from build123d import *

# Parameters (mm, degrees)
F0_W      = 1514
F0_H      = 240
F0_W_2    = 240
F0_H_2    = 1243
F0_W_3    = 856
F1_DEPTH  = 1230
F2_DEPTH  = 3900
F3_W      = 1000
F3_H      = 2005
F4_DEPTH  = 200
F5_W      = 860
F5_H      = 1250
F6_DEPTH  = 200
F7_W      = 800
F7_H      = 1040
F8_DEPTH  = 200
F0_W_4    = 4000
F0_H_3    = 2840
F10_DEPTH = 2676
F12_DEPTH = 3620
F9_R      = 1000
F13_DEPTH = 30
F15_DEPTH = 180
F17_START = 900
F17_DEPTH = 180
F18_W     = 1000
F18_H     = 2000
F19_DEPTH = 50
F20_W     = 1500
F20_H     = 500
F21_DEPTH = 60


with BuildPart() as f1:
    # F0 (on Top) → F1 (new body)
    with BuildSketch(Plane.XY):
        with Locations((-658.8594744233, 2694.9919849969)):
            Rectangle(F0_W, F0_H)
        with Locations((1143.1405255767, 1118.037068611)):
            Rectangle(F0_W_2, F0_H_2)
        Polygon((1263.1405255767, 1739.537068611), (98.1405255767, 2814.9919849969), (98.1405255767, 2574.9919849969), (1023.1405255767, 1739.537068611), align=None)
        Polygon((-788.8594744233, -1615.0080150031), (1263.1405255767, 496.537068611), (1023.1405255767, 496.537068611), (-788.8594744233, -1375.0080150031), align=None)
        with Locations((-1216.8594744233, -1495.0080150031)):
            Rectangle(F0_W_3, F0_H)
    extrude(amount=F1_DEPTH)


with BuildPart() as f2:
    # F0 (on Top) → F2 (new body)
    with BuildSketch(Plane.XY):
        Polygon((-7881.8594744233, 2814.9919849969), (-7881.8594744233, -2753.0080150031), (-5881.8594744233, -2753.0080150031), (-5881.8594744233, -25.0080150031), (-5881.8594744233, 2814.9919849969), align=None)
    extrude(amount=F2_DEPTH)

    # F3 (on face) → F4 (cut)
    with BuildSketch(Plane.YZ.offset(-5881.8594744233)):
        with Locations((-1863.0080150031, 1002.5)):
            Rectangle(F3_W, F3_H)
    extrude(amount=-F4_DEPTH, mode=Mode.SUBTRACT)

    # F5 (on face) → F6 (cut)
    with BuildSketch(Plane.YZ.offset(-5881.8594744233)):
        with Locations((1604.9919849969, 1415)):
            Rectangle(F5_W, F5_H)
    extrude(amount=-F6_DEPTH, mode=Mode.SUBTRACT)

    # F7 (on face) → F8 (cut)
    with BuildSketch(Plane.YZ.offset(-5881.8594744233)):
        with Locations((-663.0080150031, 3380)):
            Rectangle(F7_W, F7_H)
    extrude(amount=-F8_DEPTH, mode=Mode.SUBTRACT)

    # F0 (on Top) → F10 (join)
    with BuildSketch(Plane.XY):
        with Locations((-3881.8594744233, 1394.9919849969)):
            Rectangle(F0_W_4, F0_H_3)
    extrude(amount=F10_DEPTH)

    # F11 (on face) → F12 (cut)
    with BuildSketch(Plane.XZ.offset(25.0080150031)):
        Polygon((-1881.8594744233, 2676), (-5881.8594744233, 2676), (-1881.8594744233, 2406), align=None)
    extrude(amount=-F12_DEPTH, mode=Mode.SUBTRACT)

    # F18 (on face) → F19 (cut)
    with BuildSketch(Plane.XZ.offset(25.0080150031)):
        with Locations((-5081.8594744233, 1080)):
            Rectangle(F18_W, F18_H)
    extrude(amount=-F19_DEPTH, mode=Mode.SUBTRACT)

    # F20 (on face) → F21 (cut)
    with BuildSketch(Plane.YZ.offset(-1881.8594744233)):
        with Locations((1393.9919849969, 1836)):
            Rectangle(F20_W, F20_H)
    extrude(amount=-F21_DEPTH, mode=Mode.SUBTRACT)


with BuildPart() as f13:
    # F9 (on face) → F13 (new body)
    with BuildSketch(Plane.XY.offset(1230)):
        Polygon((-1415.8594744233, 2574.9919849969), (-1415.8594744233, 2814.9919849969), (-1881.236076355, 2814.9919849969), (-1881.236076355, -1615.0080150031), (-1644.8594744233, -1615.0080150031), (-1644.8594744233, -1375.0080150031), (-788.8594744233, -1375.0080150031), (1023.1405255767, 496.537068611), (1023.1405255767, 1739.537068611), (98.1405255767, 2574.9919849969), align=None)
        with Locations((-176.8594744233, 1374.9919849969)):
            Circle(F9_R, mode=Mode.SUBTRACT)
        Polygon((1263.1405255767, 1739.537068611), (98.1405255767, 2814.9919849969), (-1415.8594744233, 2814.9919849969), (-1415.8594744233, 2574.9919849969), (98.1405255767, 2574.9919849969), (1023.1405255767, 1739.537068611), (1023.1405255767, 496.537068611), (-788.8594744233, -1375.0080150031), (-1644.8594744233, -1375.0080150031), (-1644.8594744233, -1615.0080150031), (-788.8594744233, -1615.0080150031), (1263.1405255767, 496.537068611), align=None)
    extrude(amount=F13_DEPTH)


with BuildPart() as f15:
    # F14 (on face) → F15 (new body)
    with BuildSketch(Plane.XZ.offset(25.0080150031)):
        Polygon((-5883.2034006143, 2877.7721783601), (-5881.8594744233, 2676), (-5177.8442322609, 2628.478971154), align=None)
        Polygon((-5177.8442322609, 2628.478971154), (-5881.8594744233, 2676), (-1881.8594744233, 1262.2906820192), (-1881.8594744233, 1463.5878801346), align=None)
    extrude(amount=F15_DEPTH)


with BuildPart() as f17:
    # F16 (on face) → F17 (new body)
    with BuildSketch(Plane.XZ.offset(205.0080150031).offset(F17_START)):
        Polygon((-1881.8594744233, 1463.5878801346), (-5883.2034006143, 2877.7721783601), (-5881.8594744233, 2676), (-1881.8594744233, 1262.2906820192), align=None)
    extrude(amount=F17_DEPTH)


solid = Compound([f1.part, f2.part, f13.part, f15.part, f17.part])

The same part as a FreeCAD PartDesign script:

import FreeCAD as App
import Part
import Sketcher


def add_polygon(sketch, points):
    """Adds a closed chain of lines whose ends are joined by coincident constraints."""
    first, n = sketch.GeometryCount, len(points)
    for a, b in zip(points, points[1:] + points[:1]):
        sketch.addGeometry(Part.LineSegment(App.Vector(*a, 0), App.Vector(*b, 0)), False)
    for i in range(n):
        sketch.addConstraint(Sketcher.Constraint("Coincident", first + i, 2, first + (i + 1) % n, 1))

doc = App.newDocument("Part")
body = doc.addObject("PartDesign::Body", "Body")

# Sketch on XY plane
sketch1 = doc.addObject("Sketcher::SketchObject", "Sketch")
body.addObject(sketch1)
sketch1.AttachmentSupport = (doc.XY_Plane, [""])
sketch1.MapMode = "FlatFace"
add_polygon(sketch1, [(-1416, 2815), (-1416, 2575), (98, 2575), (1023, 1740), (1023, 497), (-789, -1375), (-1645, -1375), (-1645, -1615), (-789, -1615), (1263, 497), (1263, 1740), (98, 2815)])  # lines 0-11
sketch1.addConstraint(Sketcher.Constraint("Vertical", 0))
sketch1.addConstraint(Sketcher.Constraint("Horizontal", 1))
sketch1.addConstraint(Sketcher.Constraint("Vertical", 3))
sketch1.addConstraint(Sketcher.Constraint("Horizontal", 5))
sketch1.addConstraint(Sketcher.Constraint("Vertical", 6))
sketch1.addConstraint(Sketcher.Constraint("Horizontal", 7))
sketch1.addConstraint(Sketcher.Constraint("Vertical", 9))
sketch1.addConstraint(Sketcher.Constraint("Horizontal", 11))
sketch1.addConstraint(Sketcher.Constraint("Horizontal", 3, 2, 8, 2))
sketch1.addConstraint(Sketcher.Constraint("Horizontal", 2, 2, 9, 2))
sketch1.addConstraint(Sketcher.Constraint("Vertical", 4, 2, 7, 2))
sketch1.addConstraint(Sketcher.Constraint("Vertical", 1, 2, 10, 2))
sketch1.addConstraint(Sketcher.Constraint("Equal", 0, 6))
sketch1.addConstraint(Sketcher.Constraint("DistanceX", 1, 1, 1, 2, 1514.0))
sketch1.addConstraint(Sketcher.Constraint("DistanceX", 5, 2, 5, 1, 856.0))
sketch1.addConstraint(Sketcher.Constraint("DistanceY", 0, 2, 0, 1, 240.0))
sketch1.addConstraint(Sketcher.Constraint("DistanceY", 3, 2, 3, 1, 1243.0))
sketch1.addConstraint(Sketcher.Constraint("Distance", 4, 2605.0))
sketch1.addConstraint(Sketcher.Constraint("DistanceX", 1, 2, 2, 2, 925.0))
sketch1.addConstraint(Sketcher.Constraint("DistanceX", 4, 2, 3, 2, 1812.0))
sketch1.addConstraint(Sketcher.Constraint("DistanceY", 4, 2, 0, 2, 3950.0))
sketch1.addConstraint(Sketcher.Constraint("DistanceX", 3, 2, 8, 2, 240.0))
sketch1.addConstraint(Sketcher.Constraint("DistanceY", -1, 1, 2, 2, 1739.537069))
sketch1.addConstraint(Sketcher.Constraint("DistanceX", 0, 2, -1, 1, 1415.859474))
pad1 = doc.addObject("PartDesign::Pad", "Pad")
body.addObject(pad1)
pad1.Profile = sketch1
pad1.Length = 1230
body2 = doc.addObject("PartDesign::Body", "Body001")

# Sketch on XY plane
sketch2 = doc.addObject("Sketcher::SketchObject", "Sketch001")
body2.addObject(sketch2)
sketch2.AttachmentSupport = (doc.getObject("XY_Plane001"), [""])
sketch2.MapMode = "FlatFace"
add_polygon(sketch2, [(-7882, 2815), (-7882, -2753), (-5882, -2753), (-5882, 2815)])  # lines 0-3
sketch2.addConstraint(Sketcher.Constraint("Vertical", 0))
sketch2.addConstraint(Sketcher.Constraint("Horizontal", 1))
sketch2.addConstraint(Sketcher.Constraint("Vertical", 2))
sketch2.addConstraint(Sketcher.Constraint("Horizontal", 3))
sketch2.addConstraint(Sketcher.Constraint("DistanceX", 1, 1, 1, 2, 2000.0))
sketch2.addConstraint(Sketcher.Constraint("DistanceY", 0, 2, 0, 1, 5568.0))
sketch2.addConstraint(Sketcher.Constraint("DistanceX", 0, 2, -1, 1, 7881.859474))
sketch2.addConstraint(Sketcher.Constraint("DistanceY", 0, 2, -1, 1, 2753.008015))
pad2 = doc.addObject("PartDesign::Pad", "Pad001")
body2.addObject(pad2)
pad2.Profile = sketch2
pad2.Length = 3900

# Sketch on YZ plane
sketch3 = doc.addObject("Sketcher::SketchObject", "Sketch002")
body2.addObject(sketch3)
sketch3.AttachmentSupport = (doc.getObject("YZ_Plane001"), [""])
sketch3.MapMode = "FlatFace"
sketch3.AttachmentOffset = App.Placement(App.Vector(0, 0, -5881.859474), App.Rotation())
add_polygon(sketch3, [(-2363, 2005), (-2363, 0), (-1363, 0), (-1363, 2005)])  # lines 0-3
sketch3.addConstraint(Sketcher.Constraint("Vertical", 0))
sketch3.addConstraint(Sketcher.Constraint("Horizontal", 1))
sketch3.addConstraint(Sketcher.Constraint("Vertical", 2))
sketch3.addConstraint(Sketcher.Constraint("Horizontal", 3))
sketch3.addConstraint(Sketcher.Constraint("PointOnObject", 0, 2, -1))
sketch3.addConstraint(Sketcher.Constraint("DistanceX", 1, 1, 1, 2, 1000.0))
sketch3.addConstraint(Sketcher.Constraint("DistanceY", 0, 2, 0, 1, 2005.0))
sketch3.addConstraint(Sketcher.Constraint("DistanceX", 0, 2, -1, 1, 2363.008015))
pocket1 = doc.addObject("PartDesign::Pocket", "Pocket")
body2.addObject(pocket1)
pocket1.Profile = sketch3
pocket1.Length = 200

# Sketch on YZ plane
sketch4 = doc.addObject("Sketcher::SketchObject", "Sketch003")
body2.addObject(sketch4)
sketch4.AttachmentSupport = (doc.getObject("YZ_Plane001"), [""])
sketch4.MapMode = "FlatFace"
sketch4.AttachmentOffset = App.Placement(App.Vector(0, 0, -5881.859474), App.Rotation())
add_polygon(sketch4, [(1175, 2040), (1175, 790), (2035, 790), (2035, 2040)])  # lines 0-3
sketch4.addConstraint(Sketcher.Constraint("Vertical", 0))
sketch4.addConstraint(Sketcher.Constraint("Horizontal", 1))
sketch4.addConstraint(Sketcher.Constraint("Vertical", 2))
sketch4.addConstraint(Sketcher.Constraint("Horizontal", 3))
sketch4.addConstraint(Sketcher.Constraint("DistanceX", 1, 1, 1, 2, 860.0))
sketch4.addConstraint(Sketcher.Constraint("DistanceY", 0, 2, 0, 1, 1250.0))
sketch4.addConstraint(Sketcher.Constraint("DistanceY", -1, 1, 0, 2, 790.0))
sketch4.addConstraint(Sketcher.Constraint("DistanceX", -1, 1, 0, 2, 1174.991985))
pocket2 = doc.addObject("PartDesign::Pocket", "Pocket001")
body2.addObject(pocket2)
pocket2.Profile = sketch4
pocket2.Length = 200

# Sketch on YZ plane
sketch5 = doc.addObject("Sketcher::SketchObject", "Sketch004")
body2.addObject(sketch5)
sketch5.AttachmentSupport = (doc.getObject("YZ_Plane001"), [""])
sketch5.MapMode = "FlatFace"
sketch5.AttachmentOffset = App.Placement(App.Vector(0, 0, -5881.859474), App.Rotation())
add_polygon(sketch5, [(-1063, 3900), (-1063, 2860), (-263, 2860), (-263, 3900)])  # lines 0-3
sketch5.addConstraint(Sketcher.Constraint("Vertical", 0))
sketch5.addConstraint(Sketcher.Constraint("Horizontal", 1))
sketch5.addConstraint(Sketcher.Constraint("Vertical", 2))
sketch5.addConstraint(Sketcher.Constraint("Horizontal", 3))
sketch5.addConstraint(Sketcher.Constraint("DistanceX", 1, 1, 1, 2, 800.0))
sketch5.addConstraint(Sketcher.Constraint("DistanceY", 0, 2, 0, 1, 1040.0))
sketch5.addConstraint(Sketcher.Constraint("DistanceY", -1, 1, 0, 2, 2860.0))
sketch5.addConstraint(Sketcher.Constraint("DistanceX", 0, 2, -1, 1, 1063.008015))
pocket3 = doc.addObject("PartDesign::Pocket", "Pocket002")
body2.addObject(pocket3)
pocket3.Profile = sketch5
pocket3.Length = 200

# Sketch on XY plane
sketch6 = doc.addObject("Sketcher::SketchObject", "Sketch005")
body2.addObject(sketch6)
sketch6.AttachmentSupport = (doc.getObject("XY_Plane001"), [""])
sketch6.MapMode = "FlatFace"
add_polygon(sketch6, [(-5882, 2815), (-5882, -25), (-1882, -25), (-1882, 2815)])  # lines 0-3
sketch6.addConstraint(Sketcher.Constraint("Vertical", 0))
sketch6.addConstraint(Sketcher.Constraint("Horizontal", 1))
sketch6.addConstraint(Sketcher.Constraint("Vertical", 2))
sketch6.addConstraint(Sketcher.Constraint("Horizontal", 3))
sketch6.addConstraint(Sketcher.Constraint("DistanceX", 1, 1, 1, 2, 4000.0))
sketch6.addConstraint(Sketcher.Constraint("DistanceY", 0, 2, 0, 1, 2840.0))
sketch6.addConstraint(Sketcher.Constraint("DistanceX", 0, 2, -1, 1, 5881.859474))
sketch6.addConstraint(Sketcher.Constraint("DistanceY", 0, 2, -1, 1, 25.008015))
pad3 = doc.addObject("PartDesign::Pad", "Pad002")
body2.addObject(pad3)
pad3.Profile = sketch6
pad3.Length = 2676

# Sketch on XZ plane
sketch7 = doc.addObject("Sketcher::SketchObject", "Sketch006")
body2.addObject(sketch7)
sketch7.AttachmentSupport = (doc.getObject("XZ_Plane001"), [""])
sketch7.MapMode = "FlatFace"
sketch7.AttachmentOffset = App.Placement(App.Vector(0, 0, 25.008015), App.Rotation())
add_polygon(sketch7, [(-1882, 2676), (-5882, 2676), (-1882, 2406)])  # lines 0-2
sketch7.addConstraint(Sketcher.Constraint("Horizontal", 0))
sketch7.addConstraint(Sketcher.Constraint("Vertical", 2))
sketch7.addConstraint(Sketcher.Constraint("DistanceX", 0, 2, 0, 1, 4000.0))
sketch7.addConstraint(Sketcher.Constraint("DistanceY", 2, 1, 2, 2, 270.0))
sketch7.addConstraint(Sketcher.Constraint("DistanceY", -1, 1, 0, 2, 2676.0))
sketch7.addConstraint(Sketcher.Constraint("DistanceX", 0, 2, -1, 1, 5881.859474))
pocket4 = doc.addObject("PartDesign::Pocket", "Pocket003")
body2.addObject(pocket4)
pocket4.Profile = sketch7
pocket4.Length = 3620

# Sketch on XZ plane
sketch8 = doc.addObject("Sketcher::SketchObject", "Sketch007")
body2.addObject(sketch8)
sketch8.AttachmentSupport = (doc.getObject("XZ_Plane001"), [""])
sketch8.MapMode = "FlatFace"
sketch8.AttachmentOffset = App.Placement(App.Vector(0, 0, 25.008015), App.Rotation())
add_polygon(sketch8, [(-5582, 2080), (-5582, 80), (-4582, 80), (-4582, 2080)])  # lines 0-3
sketch8.addConstraint(Sketcher.Constraint("Vertical", 0))
sketch8.addConstraint(Sketcher.Constraint("Horizontal", 1))
sketch8.addConstraint(Sketcher.Constraint("Vertical", 2))
sketch8.addConstraint(Sketcher.Constraint("Horizontal", 3))
sketch8.addConstraint(Sketcher.Constraint("DistanceX", 1, 1, 1, 2, 1000.0))
sketch8.addConstraint(Sketcher.Constraint("DistanceY", 0, 2, 0, 1, 2000.0))
sketch8.addConstraint(Sketcher.Constraint("DistanceY", -1, 1, 0, 2, 80.0))
sketch8.addConstraint(Sketcher.Constraint("DistanceX", 0, 2, -1, 1, 5581.859474))
pocket5 = doc.addObject("PartDesign::Pocket", "Pocket004")
body2.addObject(pocket5)
pocket5.Profile = sketch8
pocket5.Length = 50

# Sketch on YZ plane
sketch9 = doc.addObject("Sketcher::SketchObject", "Sketch008")
body2.addObject(sketch9)
sketch9.AttachmentSupport = (doc.getObject("YZ_Plane001"), [""])
sketch9.MapMode = "FlatFace"
sketch9.AttachmentOffset = App.Placement(App.Vector(0, 0, -1881.859474), App.Rotation())
add_polygon(sketch9, [(644, 2086), (644, 1586), (2144, 1586), (2144, 2086)])  # lines 0-3
sketch9.addConstraint(Sketcher.Constraint("Vertical", 0))
sketch9.addConstraint(Sketcher.Constraint("Horizontal", 1))
sketch9.addConstraint(Sketcher.Constraint("Vertical", 2))
sketch9.addConstraint(Sketcher.Constraint("Horizontal", 3))
sketch9.addConstraint(Sketcher.Constraint("DistanceX", 1, 1, 1, 2, 1500.0))
sketch9.addConstraint(Sketcher.Constraint("DistanceY", 0, 2, 0, 1, 500.0))
sketch9.addConstraint(Sketcher.Constraint("DistanceY", -1, 1, 0, 2, 1586.0))
sketch9.addConstraint(Sketcher.Constraint("DistanceX", -1, 1, 0, 2, 643.991985))
pocket6 = doc.addObject("PartDesign::Pocket", "Pocket005")
body2.addObject(pocket6)
pocket6.Profile = sketch9
pocket6.Length = 60
body3 = doc.addObject("PartDesign::Body", "Body002")

# Sketch on XY plane
sketch10 = doc.addObject("Sketcher::SketchObject", "Sketch009")
body3.addObject(sketch10)
sketch10.AttachmentSupport = (doc.getObject("XY_Plane002"), [""])
sketch10.MapMode = "FlatFace"
sketch10.AttachmentOffset = App.Placement(App.Vector(0, 0, 1230), App.Rotation())
add_polygon(sketch10, [(-1881, 2815), (-1881, -1615), (-789, -1615), (1263, 497), (1263, 1740), (98, 2815)])  # lines 0-5
sketch10.addGeometry(Part.Circle(App.Vector(-177, 1375, 0), App.Vector(0, 0, 1), 1000), False)  # 6
sketch10.addConstraint(Sketcher.Constraint("Vertical", 0))
sketch10.addConstraint(Sketcher.Constraint("Horizontal", 1))
sketch10.addConstraint(Sketcher.Constraint("Vertical", 3))
sketch10.addConstraint(Sketcher.Constraint("Horizontal", 5))
sketch10.addConstraint(Sketcher.Constraint("Diameter", 6, 2000.0))
sketch10.addConstraint(Sketcher.Constraint("DistanceY", 0, 2, 0, 1, 4430.0))
sketch10.addConstraint(Sketcher.Constraint("DistanceY", 3, 1, 3, 2, 1243.0))
sketch10.addConstraint(Sketcher.Constraint("DistanceY", 0, 2, 6, 3, 2990.0))
sketch10.addConstraint(Sketcher.Constraint("DistanceX", 1, 2, 6, 3, 612.0))
sketch10.addConstraint(Sketcher.Constraint("DistanceX", 6, 3, 2, 2, 1440.0))
sketch10.addConstraint(Sketcher.Constraint("DistanceX", 6, 3, 4, 2, 275.0))
sketch10.addConstraint(Sketcher.Constraint("DistanceX", 1, 1, 1, 2, 1092.376602))
sketch10.addConstraint(Sketcher.Constraint("Distance", 2, 2944.372028))
sketch10.addConstraint(Sketcher.Constraint("DistanceY", -1, 1, 2, 2, 496.537069))
sketch10.addConstraint(Sketcher.Constraint("DistanceX", 6, 3, -1, 1, 176.859474))
pad4 = doc.addObject("PartDesign::Pad", "Pad003")
body3.addObject(pad4)
pad4.Profile = sketch10
pad4.Length = 30
body4 = doc.addObject("PartDesign::Body", "Body003")

# Sketch on XZ plane
sketch11 = doc.addObject("Sketcher::SketchObject", "Sketch010")
body4.addObject(sketch11)
sketch11.AttachmentSupport = (doc.getObject("XZ_Plane003"), [""])
sketch11.MapMode = "FlatFace"
sketch11.AttachmentOffset = App.Placement(App.Vector(0, 0, 25.008015), App.Rotation())
add_polygon(sketch11, [(-5883, 2878), (-5882, 2676), (-1882, 1262), (-1882, 1464)])  # lines 0-3
sketch11.addConstraint(Sketcher.Constraint("Vertical", 2))
sketch11.addConstraint(Sketcher.Constraint("Parallel", 1, 3))
sketch11.addConstraint(Sketcher.Constraint("DistanceY", -1, 1, 0, 2, 2676.0))
sketch11.addConstraint(Sketcher.Constraint("DistanceX", 0, 2, 1, 2, 4000.0))
sketch11.addConstraint(Sketcher.Constraint("DistanceY", 2, 1, 2, 2, 201.297198))
sketch11.addConstraint(Sketcher.Constraint("DistanceX", 3, 2, -1, 1, 5883.203401))
sketch11.addConstraint(Sketcher.Constraint("DistanceY", 2, 2, 3, 2, 1414.184298))
sketch11.addConstraint(Sketcher.Constraint("DistanceY", -1, 1, 2, 2, 1463.58788))
pad5 = doc.addObject("PartDesign::Pad", "Pad004")
body4.addObject(pad5)
pad5.Profile = sketch11
pad5.Length = 180
body5 = doc.addObject("PartDesign::Body", "Body004")

# Sketch on XZ plane
sketch12 = doc.addObject("Sketcher::SketchObject", "Sketch011")
body5.addObject(sketch12)
sketch12.AttachmentSupport = (doc.getObject("XZ_Plane004"), [""])
sketch12.MapMode = "FlatFace"
sketch12.AttachmentOffset = App.Placement(App.Vector(0, 0, 1105.008015), App.Rotation())
add_polygon(sketch12, [(-1882, 1464), (-5883, 2878), (-5882, 2676), (-1882, 1262)])  # lines 0-3
sketch12.addConstraint(Sketcher.Constraint("Vertical", 3))
sketch12.addConstraint(Sketcher.Constraint("Parallel", 0, 2))
sketch12.addConstraint(Sketcher.Constraint("DistanceY", -1, 1, 1, 2, 2676.0))
sketch12.addConstraint(Sketcher.Constraint("DistanceX", 1, 2, 2, 2, 4000.0))
sketch12.addConstraint(Sketcher.Constraint("DistanceY", 3, 1, 3, 2, 201.297198))
sketch12.addConstraint(Sketcher.Constraint("DistanceX", 0, 2, -1, 1, 5883.203401))
sketch12.addConstraint(Sketcher.Constraint("DistanceY", 3, 2, 0, 2, 1414.184298))
sketch12.addConstraint(Sketcher.Constraint("DistanceY", -1, 1, 0, 2, 2877.772178))
pad6 = doc.addObject("PartDesign::Pad", "Pad005")
body5.addObject(pad6)
pad6.Profile = sketch12
pad6.Length = 180

doc.recompute()
